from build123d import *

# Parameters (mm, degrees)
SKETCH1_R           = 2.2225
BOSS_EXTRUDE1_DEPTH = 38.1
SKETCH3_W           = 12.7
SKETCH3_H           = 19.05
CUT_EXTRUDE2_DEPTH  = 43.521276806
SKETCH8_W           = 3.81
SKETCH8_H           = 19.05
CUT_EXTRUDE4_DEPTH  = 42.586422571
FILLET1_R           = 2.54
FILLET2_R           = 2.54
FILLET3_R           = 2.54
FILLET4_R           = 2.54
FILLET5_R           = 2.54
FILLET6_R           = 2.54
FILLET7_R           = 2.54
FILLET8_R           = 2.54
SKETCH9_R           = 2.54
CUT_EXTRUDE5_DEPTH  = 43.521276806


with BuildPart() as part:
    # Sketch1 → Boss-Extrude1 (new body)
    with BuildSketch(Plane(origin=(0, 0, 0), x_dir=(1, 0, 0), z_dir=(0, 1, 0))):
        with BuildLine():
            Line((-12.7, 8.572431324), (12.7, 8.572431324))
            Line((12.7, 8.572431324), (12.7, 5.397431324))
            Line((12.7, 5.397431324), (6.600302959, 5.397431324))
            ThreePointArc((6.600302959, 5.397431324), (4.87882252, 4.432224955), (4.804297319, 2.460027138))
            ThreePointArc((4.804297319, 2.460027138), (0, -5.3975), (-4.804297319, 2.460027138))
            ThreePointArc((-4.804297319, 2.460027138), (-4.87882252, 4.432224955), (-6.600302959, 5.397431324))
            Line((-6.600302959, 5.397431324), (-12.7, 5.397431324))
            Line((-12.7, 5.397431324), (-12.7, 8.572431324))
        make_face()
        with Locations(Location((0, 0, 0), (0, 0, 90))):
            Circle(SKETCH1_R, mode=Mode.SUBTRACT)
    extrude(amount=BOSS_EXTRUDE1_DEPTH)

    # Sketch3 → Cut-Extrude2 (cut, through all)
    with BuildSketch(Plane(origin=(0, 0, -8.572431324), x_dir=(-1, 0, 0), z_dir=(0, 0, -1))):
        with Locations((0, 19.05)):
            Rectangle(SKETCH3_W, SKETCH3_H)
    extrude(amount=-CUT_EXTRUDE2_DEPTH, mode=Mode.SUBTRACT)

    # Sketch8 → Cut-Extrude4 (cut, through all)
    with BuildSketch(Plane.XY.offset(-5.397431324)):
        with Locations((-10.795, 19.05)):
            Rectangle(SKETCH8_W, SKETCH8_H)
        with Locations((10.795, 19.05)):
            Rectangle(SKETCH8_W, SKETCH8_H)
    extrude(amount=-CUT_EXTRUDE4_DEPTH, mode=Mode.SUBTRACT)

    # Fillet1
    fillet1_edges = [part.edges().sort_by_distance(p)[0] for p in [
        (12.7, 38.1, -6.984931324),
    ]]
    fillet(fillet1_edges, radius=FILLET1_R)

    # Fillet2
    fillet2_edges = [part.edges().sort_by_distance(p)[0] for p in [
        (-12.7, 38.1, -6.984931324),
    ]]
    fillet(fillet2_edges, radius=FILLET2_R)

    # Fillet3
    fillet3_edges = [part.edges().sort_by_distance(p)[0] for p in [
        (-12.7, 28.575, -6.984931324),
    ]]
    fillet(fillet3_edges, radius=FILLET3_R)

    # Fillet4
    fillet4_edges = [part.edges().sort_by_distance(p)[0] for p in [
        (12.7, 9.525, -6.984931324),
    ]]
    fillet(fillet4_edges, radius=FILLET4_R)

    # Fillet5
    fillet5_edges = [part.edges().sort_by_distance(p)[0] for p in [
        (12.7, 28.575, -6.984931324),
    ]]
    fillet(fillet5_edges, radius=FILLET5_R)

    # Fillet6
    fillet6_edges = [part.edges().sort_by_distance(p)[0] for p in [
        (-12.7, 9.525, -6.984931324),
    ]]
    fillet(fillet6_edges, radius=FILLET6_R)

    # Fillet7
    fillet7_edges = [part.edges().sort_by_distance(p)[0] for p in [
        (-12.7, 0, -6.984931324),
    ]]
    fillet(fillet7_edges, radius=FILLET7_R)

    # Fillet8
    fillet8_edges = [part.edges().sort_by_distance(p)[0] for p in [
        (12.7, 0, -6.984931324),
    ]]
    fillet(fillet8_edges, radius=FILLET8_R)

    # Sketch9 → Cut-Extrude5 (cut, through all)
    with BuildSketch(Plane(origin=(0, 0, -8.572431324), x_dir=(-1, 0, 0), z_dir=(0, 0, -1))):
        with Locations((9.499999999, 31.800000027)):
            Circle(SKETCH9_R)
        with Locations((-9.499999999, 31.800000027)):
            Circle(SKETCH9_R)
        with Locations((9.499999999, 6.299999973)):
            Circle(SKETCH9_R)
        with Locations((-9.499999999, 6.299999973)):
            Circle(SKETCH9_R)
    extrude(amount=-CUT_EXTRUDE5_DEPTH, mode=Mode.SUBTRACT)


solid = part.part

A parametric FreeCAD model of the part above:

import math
import FreeCAD as App
import Part
import Sketcher
Q = App.Units.Quantity


def edges_at(feature, points):
    """Names of the edges that pass closest to the given points."""
    edges = feature.Shape.Edges
    near = lambda p: min(range(len(edges)), key=lambda i: edges[i].distToShape(Part.Vertex(*p))[0])
    return sorted({f"Edge{near(p) + 1}" for p in points})

doc = App.newDocument("Part")
body = doc.addObject("PartDesign::Body", "Body")

sketch1 = body.newObject("Sketcher::SketchObject", "Sketch")
sketch1.AttachmentSupport = (doc.getObject("XZ_Plane"), [""])
sketch1.MapMode = "FlatFace"
sketch1.addGeometry([
    Part.LineSegment(App.Vector(12.7, -8.6, 0), App.Vector(-12.7, -8.6, 0)),
    Part.LineSegment(App.Vector(-12.7, -8.6, 0), App.Vector(-12.7, -5.4, 0)),
    Part.LineSegment(App.Vector(-12.7, -5.4, 0), App.Vector(-6.6, -5.4, 0)),
    Part.ArcOfCircle(Part.Circle(App.Vector(-6.6, -3.4, 0), App.Vector(0, 0, 1), 2), math.radians(-90), math.radians(27)),
    Part.ArcOfCircle(Part.Circle(App.Vector(0, 0, 0), App.Vector(0, 0, 1), 5.4), math.radians(-27), math.radians(207)),
    Part.ArcOfCircle(Part.Circle(App.Vector(6.6, -3.4, 0), App.Vector(0, 0, 1), 2), math.radians(153), math.radians(270)),
    Part.LineSegment(App.Vector(6.6, -5.4, 0), App.Vector(12.7, -5.4, 0)),
    Part.LineSegment(App.Vector(12.7, -5.4, 0), App.Vector(12.7, -8.6, 0)),
    Part.Circle(App.Vector(0, 0, 0), App.Vector(0, 0, 1), 2.2),
], False)
sketch1.addConstraint([
    Sketcher.Constraint("Coincident", 0, 2, 1, 1),
    Sketcher.Constraint("Coincident", 1, 2, 2, 1),
    Sketcher.Constraint("Tangent", 2, 2, 3, 1),
    Sketcher.Constraint("Tangent", 3, 2, 4, 2),
    Sketcher.Constraint("Tangent", 4, 1, 5, 1),
    Sketcher.Constraint("Tangent", 5, 2, 6, 1),
    Sketcher.Constraint("Coincident", 6, 2, 7, 1),
    Sketcher.Constraint("Coincident", 7, 2, 0, 1),
    Sketcher.Constraint("Horizontal", 0),
    Sketcher.Constraint("Vertical", 1),
    Sketcher.Constraint("Horizontal", 2),
    Sketcher.Constraint("Horizontal", 6),
    Sketcher.Constraint("Vertical", 7),
    Sketcher.Constraint("Coincident", 4, 3, -1, 1),
    Sketcher.Constraint("Coincident", 8, 3, -1, 1),
    Sketcher.Constraint("Equal", 3, 5),
    Sketcher.Constraint("Symmetric", 1, 2, 6, 2, -2),
    Sketcher.Constraint("DistanceX", 0, 2, 0, 1, Q("1 in")),
    Sketcher.Constraint("Diameter", 8, Q("0.175 in")),
    Sketcher.Constraint("Radius", 4, Q("0.2125 in")),
    Sketcher.Constraint("DistanceY", 1, 1, 1, 2, Q("0.125 in")),
    Sketcher.Constraint("DistanceX", 3, 3, 4, 1, Q("0.449 in")),
    Sketcher.Constraint("Radius", 3, Q("2.017764 mm")),
])
pad1 = body.newObject("PartDesign::Pad", "Pad")
pad1.Profile = sketch1
pad1.Length = Q("1.5 in")
pad1.Reversed = True

sketch2 = body.newObject("Sketcher::SketchObject", "Sketch001")
sketch2.AttachmentSupport = (doc.getObject("XY_Plane"), [""])
sketch2.MapMode = "FlatFace"
sketch2.AttachmentOffset = App.Placement(App.Vector(0, 0, -8.572431), App.Rotation())
sketch2.addGeometry([
    Part.LineSegment(App.Vector(6, 29, 0), App.Vector(6, 10, 0)),
    Part.LineSegment(App.Vector(6, 10, 0), App.Vector(-6, 10, 0)),
    Part.LineSegment(App.Vector(-6, 10, 0), App.Vector(-6, 29, 0)),
    Part.LineSegment(App.Vector(-6, 29, 0), App.Vector(6, 29, 0)),
], False)
sketch2.addConstraint([
    Sketcher.Constraint("Coincident", 0, 2, 1, 1),
    Sketcher.Constraint("Coincident", 1, 2, 2, 1),
    Sketcher.Constraint("Coincident", 2, 2, 3, 1),
    Sketcher.Constraint("Coincident", 3, 2, 0, 1),
    Sketcher.Constraint("Vertical", 0),
    Sketcher.Constraint("Horizontal", 1),
    Sketcher.Constraint("Vertical", 2),
    Sketcher.Constraint("Horizontal", 3),
    Sketcher.Constraint("DistanceX", 1, 2, 1, 1, Q("0.5 in")),
    Sketcher.Constraint("DistanceY", 0, 2, 0, 1, Q("0.75 in")),
    Sketcher.Constraint("DistanceX", -1, 1, 0, 2, Q("0.25 in")),
    Sketcher.Constraint("DistanceY", -1, 1, 0, 2, Q("0.375 in")),
])
pocket1 = body.newObject("PartDesign::Pocket", "Pocket")
pocket1.Profile = sketch2
pocket1.Type = "ThroughAll"
pocket1.Reversed = True

sketch3 = body.newObject("Sketcher::SketchObject", "Sketch002")
sketch3.AttachmentSupport = (doc.getObject("XY_Plane"), [""])
sketch3.MapMode = "FlatFace"
sketch3.AttachmentOffset = App.Placement(App.Vector(0, 0, -5.397431), App.Rotation())
sketch3.addGeometry([
    Part.LineSegment(App.Vector(-12.7, 28.6, 0), App.Vector(-12.7, 9.5, 0)),
    Part.LineSegment(App.Vector(-12.7, 9.5, 0), App.Vector(-8.9, 9.5, 0)),
    Part.LineSegment(App.Vector(-8.9, 9.5, 0), App.Vector(-8.9, 28.6, 0)),
    Part.LineSegment(App.Vector(-8.9, 28.6, 0), App.Vector(-12.7, 28.6, 0)),
    Part.LineSegment(App.Vector(8.9, 28.6, 0), App.Vector(8.9, 9.5, 0)),
    Part.LineSegment(App.Vector(8.9, 9.5, 0), App.Vector(12.7, 9.5, 0)),
    Part.LineSegment(App.Vector(12.7, 9.5, 0), App.Vector(12.7, 28.6, 0)),
    Part.LineSegment(App.Vector(12.7, 28.6, 0), App.Vector(8.9, 28.6, 0)),
], False)
sketch3.addConstraint([
    Sketcher.Constraint("Coincident", 0, 2, 1, 1),
    Sketcher.Constraint("Coincident", 1, 2, 2, 1),
    Sketcher.Constraint("Coincident", 2, 2, 3, 1),
    Sketcher.Constraint("Coincident", 3, 2, 0, 1),
    Sketcher.Constraint("Coincident", 4, 2, 5, 1),
    Sketcher.Constraint("Coincident", 5, 2, 6, 1),
    Sketcher.Constraint("Coincident", 6, 2, 7, 1),
    Sketcher.Constraint("Coincident", 7, 2, 4, 1),
    Sketcher.Constraint("Vertical", 0),
    Sketcher.Constraint("Horizontal", 1),
    Sketcher.Constraint("Vertical", 2),
    Sketcher.Constraint("Horizontal", 3),
    Sketcher.Constraint("Vertical", 4),
    Sketcher.Constraint("Horizontal", 5),
    Sketcher.Constraint("Vertical", 6),
    Sketcher.Constraint("Horizontal", 7),
    Sketcher.Constraint("Symmetric", 1, 2, 4, 2, -2),
    Sketcher.Constraint("Symmetric", 3, 2, 6, 2, -2),
    Sketcher.Constraint("DistanceX", 0, 2, 5, 2, Q("1 in")),
    Sketcher.Constraint("DistanceX", 1, 1, 1, 2, Q("0.15 in")),
    Sketcher.Constraint("DistanceY", 0, 2, 0, 1, Q("0.75 in")),
    Sketcher.Constraint("DistanceY", -1, 1, 0, 2, Q("0.375 in")),
])
pocket2 = body.newObject("PartDesign::Pocket", "Pocket001")
pocket2.Profile = sketch3
pocket2.Type = "ThroughAll"
doc.recompute()

fillet = body.newObject("PartDesign::Fillet", "Fillet")
fillet.Base = (pocket2, edges_at(pocket2, [(12.7, 38.1, -6.985)]))
fillet.Radius = Q("0.1 in")
doc.recompute()

fillet2 = body.newObject("PartDesign::Fillet", "Fillet001")
fillet2.Base = (fillet, edges_at(fillet, [(-12.7, 38.1, -6.985)]))
fillet2.Radius = Q("0.1 in")
doc.recompute()

fillet3 = body.newObject("PartDesign::Fillet", "Fillet002")
fillet3.Base = (fillet2, edges_at(fillet2, [(-12.7, 28.575, -6.985)]))
fillet3.Radius = Q("0.1 in")
doc.recompute()

fillet4 = body.newObject("PartDesign::Fillet", "Fillet003")
fillet4.Base = (fillet3, edges_at(fillet3, [(12.7, 9.525, -6.985)]))
fillet4.Radius = Q("0.1 in")
doc.recompute()

fillet5 = body.newObject("PartDesign::Fillet", "Fillet004")
fillet5.Base = (fillet4, edges_at(fillet4, [(12.7, 28.575, -6.985)]))
fillet5.Radius = Q("0.1 in")
doc.recompute()

fillet6 = body.newObject("PartDesign::Fillet", "Fillet005")
fillet6.Base = (fillet5, edges_at(fillet5, [(-12.7, 9.525, -6.985)]))
fillet6.Radius = Q("0.1 in")
doc.recompute()

fillet7 = body.newObject("PartDesign::Fillet", "Fillet006")
fillet7.Base = (fillet6, edges_at(fillet6, [(-12.7, 0, -6.985)]))
fillet7.Radius = Q("0.1 in")
doc.recompute()

fillet8 = body.newObject("PartDesign::Fillet", "Fillet007")
fillet8.Base = (fillet7, edges_at(fillet7, [(12.7, 0, -6.985)]))
fillet8.Radius = Q("0.1 in")

sketch4 = body.newObject("Sketcher::SketchObject", "Sketch003")
sketch4.AttachmentSupport = (doc.getObject("XY_Plane"), [""])
sketch4.MapMode = "FlatFace"
sketch4.AttachmentOffset = App.Placement(App.Vector(0, 0, -8.572431), App.Rotation())
sketch4.addGeometry([
    Part.Circle(App.Vector(-9.5, 31.8, 0), App.Vector(0, 0, 1), 2.5),
    Part.Circle(App.Vector(9.5, 31.8, 0), App.Vector(0, 0, 1), 2.5),
    Part.Circle(App.Vector(-9.5, 6.3, 0), App.Vector(0, 0, 1), 2.5),
    Part.Circle(App.Vector(9.5, 6.3, 0), App.Vector(0, 0, 1), 2.5),
], False)
sketch4.addConstraint([
    Sketcher.Constraint("Equal", 0, 1),
    Sketcher.Constraint("Equal", 1, 2),
    Sketcher.Constraint("Equal", 2, 3),
    Sketcher.Constraint("Symmetric", 0, 3, 1, 3, -2),
    Sketcher.Constraint("Symmetric", 2, 3, 3, 3, -2),
    Sketcher.Constraint("Vertical", 0, 3, 2, 3),
    Sketcher.Constraint("Diameter", 0, Q("0.2 in")),
    Sketcher.Constraint("DistanceX", 0, 3, -1, 1, Q("9.5 mm")),
    Sketcher.Constraint("DistanceY", -1, 1, 0, 3, Q("31.8 mm")),
    Sketcher.Constraint("DistanceY", -1, 1, 2, 3, Q("6.3 mm")),
])
pocket3 = body.newObject("PartDesign::Pocket", "Pocket002")
pocket3.Profile = sketch4
pocket3.Type = "ThroughAll"
pocket3.Reversed = True

doc.recompute()
